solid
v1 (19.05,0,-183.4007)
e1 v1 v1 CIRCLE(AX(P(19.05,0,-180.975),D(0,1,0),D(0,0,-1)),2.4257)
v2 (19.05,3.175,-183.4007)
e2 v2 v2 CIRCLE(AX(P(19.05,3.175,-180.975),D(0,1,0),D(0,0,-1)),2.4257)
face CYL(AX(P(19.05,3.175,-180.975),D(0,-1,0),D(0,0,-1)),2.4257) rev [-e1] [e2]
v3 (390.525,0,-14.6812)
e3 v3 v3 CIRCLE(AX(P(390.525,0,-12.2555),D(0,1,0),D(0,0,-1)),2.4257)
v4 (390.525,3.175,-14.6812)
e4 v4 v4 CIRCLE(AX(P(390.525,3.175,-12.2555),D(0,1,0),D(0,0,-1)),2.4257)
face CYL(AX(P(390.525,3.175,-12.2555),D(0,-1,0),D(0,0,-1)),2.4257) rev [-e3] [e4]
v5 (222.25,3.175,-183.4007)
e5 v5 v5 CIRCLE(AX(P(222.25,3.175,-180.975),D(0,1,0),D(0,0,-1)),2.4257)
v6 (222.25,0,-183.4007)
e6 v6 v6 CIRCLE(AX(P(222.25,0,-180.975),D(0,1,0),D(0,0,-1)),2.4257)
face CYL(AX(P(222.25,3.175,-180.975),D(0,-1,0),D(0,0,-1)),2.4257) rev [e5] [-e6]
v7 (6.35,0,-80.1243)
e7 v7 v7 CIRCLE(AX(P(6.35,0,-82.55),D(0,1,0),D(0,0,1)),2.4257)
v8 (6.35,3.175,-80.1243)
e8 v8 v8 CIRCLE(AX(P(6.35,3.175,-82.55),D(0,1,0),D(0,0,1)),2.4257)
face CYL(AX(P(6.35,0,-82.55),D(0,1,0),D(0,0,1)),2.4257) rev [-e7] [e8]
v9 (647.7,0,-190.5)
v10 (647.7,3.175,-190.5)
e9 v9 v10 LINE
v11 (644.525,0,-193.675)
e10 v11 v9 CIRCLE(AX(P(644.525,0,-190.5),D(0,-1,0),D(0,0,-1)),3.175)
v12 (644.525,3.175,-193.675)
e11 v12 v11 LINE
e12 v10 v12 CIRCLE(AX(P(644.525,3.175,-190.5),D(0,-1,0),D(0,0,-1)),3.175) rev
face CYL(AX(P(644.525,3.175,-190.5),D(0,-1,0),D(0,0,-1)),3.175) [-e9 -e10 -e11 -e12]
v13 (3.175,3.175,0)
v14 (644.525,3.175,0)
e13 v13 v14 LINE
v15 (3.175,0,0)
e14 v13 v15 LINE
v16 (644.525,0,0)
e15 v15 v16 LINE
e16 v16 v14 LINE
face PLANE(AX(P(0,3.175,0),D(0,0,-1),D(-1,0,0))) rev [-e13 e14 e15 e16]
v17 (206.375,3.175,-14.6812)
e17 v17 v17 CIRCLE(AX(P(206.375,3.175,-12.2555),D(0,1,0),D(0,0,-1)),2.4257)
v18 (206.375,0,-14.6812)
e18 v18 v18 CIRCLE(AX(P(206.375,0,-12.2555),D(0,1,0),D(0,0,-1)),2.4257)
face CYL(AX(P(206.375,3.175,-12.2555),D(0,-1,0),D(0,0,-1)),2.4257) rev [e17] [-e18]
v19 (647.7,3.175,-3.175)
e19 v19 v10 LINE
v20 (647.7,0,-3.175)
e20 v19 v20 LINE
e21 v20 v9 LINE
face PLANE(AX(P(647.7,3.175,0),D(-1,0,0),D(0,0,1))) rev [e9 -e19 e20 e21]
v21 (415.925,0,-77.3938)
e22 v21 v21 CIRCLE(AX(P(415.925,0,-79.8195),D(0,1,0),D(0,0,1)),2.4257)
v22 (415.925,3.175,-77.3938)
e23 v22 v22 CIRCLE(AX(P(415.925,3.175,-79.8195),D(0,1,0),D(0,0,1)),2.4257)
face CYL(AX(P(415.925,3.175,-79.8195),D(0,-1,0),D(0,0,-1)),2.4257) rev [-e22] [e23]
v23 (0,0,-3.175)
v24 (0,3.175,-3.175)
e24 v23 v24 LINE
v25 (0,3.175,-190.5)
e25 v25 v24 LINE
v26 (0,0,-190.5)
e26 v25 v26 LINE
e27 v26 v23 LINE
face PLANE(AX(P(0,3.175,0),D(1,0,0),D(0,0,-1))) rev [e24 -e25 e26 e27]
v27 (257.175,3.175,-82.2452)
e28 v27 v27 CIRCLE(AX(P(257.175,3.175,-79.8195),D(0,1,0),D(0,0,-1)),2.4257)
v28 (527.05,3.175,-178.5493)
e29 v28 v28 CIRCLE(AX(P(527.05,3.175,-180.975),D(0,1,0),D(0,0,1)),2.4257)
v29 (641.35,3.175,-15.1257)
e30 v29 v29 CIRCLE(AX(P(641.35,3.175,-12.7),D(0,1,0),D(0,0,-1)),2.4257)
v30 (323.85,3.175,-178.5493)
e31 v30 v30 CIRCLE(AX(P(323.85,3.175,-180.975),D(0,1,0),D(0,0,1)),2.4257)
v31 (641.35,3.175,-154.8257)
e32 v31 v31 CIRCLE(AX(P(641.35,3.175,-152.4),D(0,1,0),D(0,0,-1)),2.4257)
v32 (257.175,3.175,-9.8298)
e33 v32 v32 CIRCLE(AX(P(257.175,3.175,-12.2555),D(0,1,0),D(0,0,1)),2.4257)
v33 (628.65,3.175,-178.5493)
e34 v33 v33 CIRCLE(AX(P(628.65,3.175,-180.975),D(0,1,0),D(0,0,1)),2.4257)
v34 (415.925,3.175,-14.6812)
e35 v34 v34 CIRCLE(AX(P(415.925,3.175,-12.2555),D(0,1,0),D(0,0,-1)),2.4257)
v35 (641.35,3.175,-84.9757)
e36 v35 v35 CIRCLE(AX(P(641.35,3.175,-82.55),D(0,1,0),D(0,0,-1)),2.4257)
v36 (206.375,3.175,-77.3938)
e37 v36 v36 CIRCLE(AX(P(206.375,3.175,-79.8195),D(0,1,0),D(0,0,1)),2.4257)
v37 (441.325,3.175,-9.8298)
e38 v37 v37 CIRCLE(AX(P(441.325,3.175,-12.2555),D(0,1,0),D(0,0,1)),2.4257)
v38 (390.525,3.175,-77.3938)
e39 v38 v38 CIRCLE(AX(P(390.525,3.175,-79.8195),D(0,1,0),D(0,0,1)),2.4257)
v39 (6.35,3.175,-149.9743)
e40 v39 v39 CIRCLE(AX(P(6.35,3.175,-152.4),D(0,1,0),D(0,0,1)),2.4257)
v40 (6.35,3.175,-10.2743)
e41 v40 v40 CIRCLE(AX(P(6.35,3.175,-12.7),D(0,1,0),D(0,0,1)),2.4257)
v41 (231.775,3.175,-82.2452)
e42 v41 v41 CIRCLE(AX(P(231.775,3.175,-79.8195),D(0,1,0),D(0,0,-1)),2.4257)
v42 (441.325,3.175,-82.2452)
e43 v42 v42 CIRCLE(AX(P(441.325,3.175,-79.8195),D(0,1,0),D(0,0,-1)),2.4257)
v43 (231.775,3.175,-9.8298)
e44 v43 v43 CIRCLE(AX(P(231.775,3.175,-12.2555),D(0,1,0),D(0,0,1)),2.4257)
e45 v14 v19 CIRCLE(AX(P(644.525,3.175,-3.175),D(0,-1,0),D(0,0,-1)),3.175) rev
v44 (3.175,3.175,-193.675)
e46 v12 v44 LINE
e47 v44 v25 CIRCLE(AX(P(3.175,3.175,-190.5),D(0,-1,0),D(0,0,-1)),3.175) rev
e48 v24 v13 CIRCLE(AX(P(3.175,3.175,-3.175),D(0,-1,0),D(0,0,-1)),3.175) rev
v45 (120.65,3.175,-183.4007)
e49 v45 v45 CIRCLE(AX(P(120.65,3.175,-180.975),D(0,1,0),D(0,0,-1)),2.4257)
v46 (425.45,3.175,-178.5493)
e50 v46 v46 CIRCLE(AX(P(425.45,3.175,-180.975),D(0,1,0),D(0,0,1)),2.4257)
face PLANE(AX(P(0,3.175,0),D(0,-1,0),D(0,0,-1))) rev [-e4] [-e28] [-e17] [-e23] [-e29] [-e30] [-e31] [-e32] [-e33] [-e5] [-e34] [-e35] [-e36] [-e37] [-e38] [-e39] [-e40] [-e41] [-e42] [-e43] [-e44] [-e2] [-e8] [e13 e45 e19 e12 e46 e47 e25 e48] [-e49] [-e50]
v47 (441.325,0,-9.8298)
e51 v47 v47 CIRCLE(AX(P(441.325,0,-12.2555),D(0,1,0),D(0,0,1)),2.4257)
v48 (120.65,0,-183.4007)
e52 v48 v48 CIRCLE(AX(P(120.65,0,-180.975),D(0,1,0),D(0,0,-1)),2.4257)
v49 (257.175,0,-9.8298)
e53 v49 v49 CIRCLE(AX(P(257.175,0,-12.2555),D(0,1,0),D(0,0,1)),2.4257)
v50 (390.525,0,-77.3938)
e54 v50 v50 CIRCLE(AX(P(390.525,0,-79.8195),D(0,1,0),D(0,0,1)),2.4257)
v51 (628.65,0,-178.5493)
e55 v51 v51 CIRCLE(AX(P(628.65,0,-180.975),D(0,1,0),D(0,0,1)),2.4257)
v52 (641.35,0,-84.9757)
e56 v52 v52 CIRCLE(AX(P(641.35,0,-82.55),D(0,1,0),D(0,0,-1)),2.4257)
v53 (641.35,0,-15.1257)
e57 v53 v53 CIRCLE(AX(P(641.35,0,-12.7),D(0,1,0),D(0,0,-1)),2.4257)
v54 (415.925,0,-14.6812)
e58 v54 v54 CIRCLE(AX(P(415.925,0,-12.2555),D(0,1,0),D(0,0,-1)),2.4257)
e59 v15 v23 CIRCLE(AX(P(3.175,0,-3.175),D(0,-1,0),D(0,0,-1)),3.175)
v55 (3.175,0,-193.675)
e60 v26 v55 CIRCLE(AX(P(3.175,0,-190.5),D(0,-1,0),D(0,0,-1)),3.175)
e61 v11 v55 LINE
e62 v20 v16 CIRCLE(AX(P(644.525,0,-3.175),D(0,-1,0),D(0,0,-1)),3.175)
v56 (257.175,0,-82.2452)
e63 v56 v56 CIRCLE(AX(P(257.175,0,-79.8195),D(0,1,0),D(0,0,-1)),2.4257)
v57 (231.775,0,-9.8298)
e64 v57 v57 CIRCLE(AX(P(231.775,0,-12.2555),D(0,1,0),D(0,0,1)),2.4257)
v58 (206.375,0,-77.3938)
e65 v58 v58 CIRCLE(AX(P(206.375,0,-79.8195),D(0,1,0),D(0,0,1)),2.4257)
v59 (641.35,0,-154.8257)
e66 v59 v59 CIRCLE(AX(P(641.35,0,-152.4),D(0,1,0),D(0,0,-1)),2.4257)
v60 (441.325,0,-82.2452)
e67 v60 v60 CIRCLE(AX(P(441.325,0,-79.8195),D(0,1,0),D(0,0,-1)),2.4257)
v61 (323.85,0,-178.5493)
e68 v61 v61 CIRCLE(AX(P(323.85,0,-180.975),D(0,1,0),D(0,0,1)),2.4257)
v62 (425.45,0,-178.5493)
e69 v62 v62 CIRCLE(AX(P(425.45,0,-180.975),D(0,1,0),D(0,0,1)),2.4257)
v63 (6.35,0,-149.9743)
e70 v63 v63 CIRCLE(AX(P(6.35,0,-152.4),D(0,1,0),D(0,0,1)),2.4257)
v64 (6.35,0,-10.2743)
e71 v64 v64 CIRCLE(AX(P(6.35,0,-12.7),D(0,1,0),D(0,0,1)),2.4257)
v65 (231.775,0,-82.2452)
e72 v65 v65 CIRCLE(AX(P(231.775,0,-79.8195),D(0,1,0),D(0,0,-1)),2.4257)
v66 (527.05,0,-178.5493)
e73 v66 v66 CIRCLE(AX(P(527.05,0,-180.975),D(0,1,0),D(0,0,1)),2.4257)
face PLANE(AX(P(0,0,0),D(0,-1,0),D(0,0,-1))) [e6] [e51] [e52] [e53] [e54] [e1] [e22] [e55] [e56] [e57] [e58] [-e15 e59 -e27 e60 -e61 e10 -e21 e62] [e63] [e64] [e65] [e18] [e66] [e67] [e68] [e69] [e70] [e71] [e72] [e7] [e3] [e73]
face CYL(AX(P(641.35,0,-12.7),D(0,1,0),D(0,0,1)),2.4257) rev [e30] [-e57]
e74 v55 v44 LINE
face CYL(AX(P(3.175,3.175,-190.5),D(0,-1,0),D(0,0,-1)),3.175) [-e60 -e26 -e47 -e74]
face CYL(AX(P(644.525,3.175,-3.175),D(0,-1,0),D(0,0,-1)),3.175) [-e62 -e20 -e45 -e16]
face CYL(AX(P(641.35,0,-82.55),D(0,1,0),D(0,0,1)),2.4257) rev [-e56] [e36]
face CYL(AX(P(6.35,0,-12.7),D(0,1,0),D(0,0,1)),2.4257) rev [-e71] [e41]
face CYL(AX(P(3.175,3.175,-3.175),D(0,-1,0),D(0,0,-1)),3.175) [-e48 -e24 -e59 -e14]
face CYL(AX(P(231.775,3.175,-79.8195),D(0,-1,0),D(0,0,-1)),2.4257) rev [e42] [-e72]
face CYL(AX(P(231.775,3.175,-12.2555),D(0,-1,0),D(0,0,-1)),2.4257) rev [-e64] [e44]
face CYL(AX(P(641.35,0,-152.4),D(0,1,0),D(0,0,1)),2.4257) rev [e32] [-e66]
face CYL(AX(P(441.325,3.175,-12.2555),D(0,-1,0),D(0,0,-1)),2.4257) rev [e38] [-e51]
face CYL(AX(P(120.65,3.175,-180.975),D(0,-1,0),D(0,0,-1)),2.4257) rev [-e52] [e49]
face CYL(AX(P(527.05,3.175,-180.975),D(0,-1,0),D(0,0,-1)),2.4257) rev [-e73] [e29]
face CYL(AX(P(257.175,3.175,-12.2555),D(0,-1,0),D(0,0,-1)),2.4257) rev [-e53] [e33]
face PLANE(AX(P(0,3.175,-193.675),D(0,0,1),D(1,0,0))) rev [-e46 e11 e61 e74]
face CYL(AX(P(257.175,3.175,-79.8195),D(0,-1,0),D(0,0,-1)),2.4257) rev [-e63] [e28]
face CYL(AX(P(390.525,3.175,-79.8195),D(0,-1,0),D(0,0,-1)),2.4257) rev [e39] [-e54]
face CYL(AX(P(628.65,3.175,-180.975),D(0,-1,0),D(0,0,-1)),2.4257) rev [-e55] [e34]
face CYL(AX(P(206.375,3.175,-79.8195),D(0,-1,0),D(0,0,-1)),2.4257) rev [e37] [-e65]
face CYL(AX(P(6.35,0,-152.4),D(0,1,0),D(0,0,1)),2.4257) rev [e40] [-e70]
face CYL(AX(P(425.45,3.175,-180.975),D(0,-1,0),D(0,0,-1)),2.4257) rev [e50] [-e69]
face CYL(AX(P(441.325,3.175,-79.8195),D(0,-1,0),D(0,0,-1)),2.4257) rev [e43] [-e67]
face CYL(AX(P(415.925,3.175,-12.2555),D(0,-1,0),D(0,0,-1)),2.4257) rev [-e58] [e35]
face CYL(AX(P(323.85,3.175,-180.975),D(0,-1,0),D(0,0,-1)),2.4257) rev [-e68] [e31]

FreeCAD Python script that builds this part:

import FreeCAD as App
import Part
import Sketcher

V = App.Vector
Q = App.Units.Quantity


def edges_at(feature, points):
    """Names of the edges that pass closest to the given points."""
    edges = feature.Shape.Edges
    near = lambda p: min(range(len(edges)), key=lambda i: edges[i].distToShape(Part.Vertex(*p))[0])
    return sorted({f"Edge{near(p) + 1}" for p in points})


def add_polygon(sketch, points):
    """Adds a closed chain of lines whose ends are joined by coincident constraints."""
    first, n = sketch.GeometryCount, len(points)
    for a, b in zip(points, points[1:] + points[:1]):
        sketch.addGeometry(Part.LineSegment(App.Vector(*a, 0), App.Vector(*b, 0)), False)
    for i in range(n):
        sketch.addConstraint(Sketcher.Constraint("Coincident", first + i, 2, first + (i + 1) % n, 1))

doc = App.newDocument("Part")
body = doc.addObject("PartDesign::Body", "Body")

sketch1 = body.newObject("Sketcher::SketchObject", "Sketch")
sketch1.AttachmentSupport = (doc.getObject("XZ_Plane"), [""])
sketch1.MapMode = "FlatFace"
add_polygon(sketch1, [(0, -193.7), (0, 0), (647.7, 0), (647.7, -193.7)])
sketch1.addGeometry(Part.Circle(V(206.4, -12.3, 0), V(0, 0, 1), 2.4), False)
sketch1.addGeometry(Part.Circle(V(231.8, -12.3, 0), V(0, 0, 1), 2.4), False)
sketch1.addGeometry(Part.Circle(V(257.2, -12.3, 0), V(0, 0, 1), 2.4), False)
sketch1.addGeometry(Part.Circle(V(206.4, -79.8, 0), V(0, 0, 1), 2.4), False)
sketch1.addGeometry(Part.Circle(V(231.8, -79.8, 0), V(0, 0, 1), 2.4), False)
sketch1.addGeometry(Part.Circle(V(257.2, -79.8, 0), V(0, 0, 1), 2.4), False)
sketch1.addGeometry(Part.Circle(V(390.5, -12.3, 0), V(0, 0, 1), 2.4), False)
sketch1.addGeometry(Part.Circle(V(415.9, -12.3, 0), V(0, 0, 1), 2.4), False)
sketch1.addGeometry(Part.Circle(V(441.3, -12.3, 0), V(0, 0, 1), 2.4), False)
sketch1.addGeometry(Part.Circle(V(390.5, -79.8, 0), V(0, 0, 1), 2.4), False)
sketch1.addGeometry(Part.Circle(V(415.9, -79.8, 0), V(0, 0, 1), 2.4), False)
sketch1.addGeometry(Part.Circle(V(441.3, -79.8, 0), V(0, 0, 1), 2.4), False)
sketch1.addGeometry(Part.Circle(V(19.1, -181, 0), V(0, 0, 1), 2.4), False)
sketch1.addGeometry(Part.Circle(V(120.7, -181, 0), V(0, 0, 1), 2.4), False)
sketch1.addGeometry(Part.Circle(V(222.2, -181, 0), V(0, 0, 1), 2.4), False)
sketch1.addGeometry(Part.Circle(V(323.9, -181, 0), V(0, 0, 1), 2.4), False)
sketch1.addGeometry(Part.Circle(V(425.4, -181, 0), V(0, 0, 1), 2.4), False)
sketch1.addGeometry(Part.Circle(V(527, -181, 0), V(0, 0, 1), 2.4), False)
sketch1.addGeometry(Part.Circle(V(628.6, -181, 0), V(0, 0, 1), 2.4), False)
sketch1.addConstraint([
    Sketcher.Constraint("Vertical", 0),
    Sketcher.Constraint("Horizontal", 1),
    Sketcher.Constraint("Vertical", 2),
    Sketcher.Constraint("Horizontal", 3),
    Sketcher.Constraint("Coincident", 0, 2, -1, 1),
    Sketcher.Constraint("Equal", 4, 5),
    Sketcher.Constraint("Equal", 5, 6),
    Sketcher.Constraint("Equal", 6, 7),
    Sketcher.Constraint("Equal", 7, 8),
    Sketcher.Constraint("Equal", 8, 9),
    Sketcher.Constraint("Equal", 9, 10),
    Sketcher.Constraint("Equal", 10, 11),
    Sketcher.Constraint("Equal", 11, 12),
    Sketcher.Constraint("Equal", 12, 13),
    Sketcher.Constraint("Equal", 13, 14),
    Sketcher.Constraint("Equal", 14, 15),
    Sketcher.Constraint("Equal", 15, 16),
    Sketcher.Constraint("Equal", 16, 17),
    Sketcher.Constraint("Equal", 17, 18),
    Sketcher.Constraint("Equal", 18, 19),
    Sketcher.Constraint("Equal", 19, 20),
    Sketcher.Constraint("Equal", 20, 21),
    Sketcher.Constraint("Equal", 21, 22),
    Sketcher.Constraint("Horizontal", 4, 3, 5, 3),
    Sketcher.Constraint("Horizontal", 5, 3, 6, 3),
    Sketcher.Constraint("Horizontal", 7, 3, 8, 3),
    Sketcher.Constraint("Horizontal", 8, 3, 9, 3),
    Sketcher.Constraint("Horizontal", 6, 3, 10, 3),
    Sketcher.Constraint("Horizontal", 10, 3, 11, 3),
    Sketcher.Constraint("Horizontal", 11, 3, 12, 3),
    Sketcher.Constraint("Horizontal", 9, 3, 13, 3),
    Sketcher.Constraint("Horizontal", 13, 3, 14, 3),
    Sketcher.Constraint("Horizontal", 14, 3, 15, 3),
    Sketcher.Constraint("Horizontal", 16, 3, 17, 3),
    Sketcher.Constraint("Horizontal", 17, 3, 18, 3),
    Sketcher.Constraint("Horizontal", 18, 3, 19, 3),
    Sketcher.Constraint("Horizontal", 19, 3, 20, 3),
    Sketcher.Constraint("Horizontal", 20, 3, 21, 3),
    Sketcher.Constraint("Horizontal", 21, 3, 22, 3),
    Sketcher.Constraint("Vertical", 4, 3, 7, 3),
    Sketcher.Constraint("Vertical", 5, 3, 8, 3),
    Sketcher.Constraint("Vertical", 6, 3, 9, 3),
    Sketcher.Constraint("Vertical", 10, 3, 13, 3),
    Sketcher.Constraint("Vertical", 11, 3, 14, 3),
    Sketcher.Constraint("Vertical", 12, 3, 15, 3),
    Sketcher.Constraint("Diameter", 4, Q("0.191 in")),
    Sketcher.Constraint("DistanceX", 1, 1, 1, 2, Q("25.5 in")),
    Sketcher.Constraint("DistanceX", 4, 3, 5, 3, Q("1 in")),
    Sketcher.Constraint("DistanceX", 5, 3, 6, 3, Q("1 in")),
    Sketcher.Constraint("DistanceX", 10, 3, 11, 3, Q("1 in")),
    Sketcher.Constraint("DistanceX", 11, 3, 12, 3, Q("1 in")),
    Sketcher.Constraint("DistanceX", 16, 3, 17, 3, Q("4 in")),
    Sketcher.Constraint("DistanceX", 17, 3, 18, 3, Q("4 in")),
    Sketcher.Constraint("DistanceX", 18, 3, 19, 3, Q("4 in")),
    Sketcher.Constraint("DistanceX", 19, 3, 20, 3, Q("4 in")),
    Sketcher.Constraint("DistanceX", 20, 3, 21, 3, Q("4 in")),
    Sketcher.Constraint("DistanceX", 21, 3, 22, 3, Q("4 in")),
    Sketcher.Constraint("DistanceY", 2, 2, 22, 3, Q("0.5 in")),
    Sketcher.Constraint("DistanceY", 0, 1, 0, 2, Q("7.625 in")),
    Sketcher.Constraint("DistanceX", -1, 1, 16, 3, Q("0.75 in")),
    Sketcher.Constraint("DistanceY", 7, 3, 4, 3, Q("2.66 in")),
    Sketcher.Constraint("DistanceX", 6, 3, 10, 3, Q("5.25 in")),
    Sketcher.Constraint("DistanceX", -1, 1, 4, 3, Q("8.125 in")),
    Sketcher.Constraint("DistanceY", 4, 3, -1, 1, Q("0.4825 in")),
])
pad1 = body.newObject("PartDesign::Pad", "Pad")
pad1.Profile = sketch1
pad1.Length = Q("0.125 in")
pad1.Reversed = True

sketch2 = body.newObject("Sketcher::SketchObject", "Sketch001")
sketch2.AttachmentSupport = (doc.getObject("XZ_Plane"), [""])
sketch2.MapMode = "FlatFace"
sketch2.AttachmentOffset = App.Placement(V(0, 0, -0.125 * 25.4), App.Rotation())
sketch2.addGeometry([
    Part.Circle(V(6.3, -12.7, 0), V(0, 0, 1), 2.4),
    Part.Circle(V(6.3, -82.5, 0), V(0, 0, 1), 2.4),
    Part.Circle(V(6.3, -152.4, 0), V(0, 0, 1), 2.4),
    Part.Circle(V(6.3, -222.2, 0), V(0, 0, 1), 2.4),
    Part.Circle(V(641.4, -222.2, 0), V(0, 0, 1), 2.4),
    Part.Circle(V(641.4, -152.4, 0), V(0, 0, 1), 2.4),
    Part.Circle(V(641.4, -82.5, 0), V(0, 0, 1), 2.4),
    Part.Circle(V(641.4, -12.7, 0), V(0, 0, 1), 2.4),
], False)
sketch2.addConstraint([
    Sketcher.Constraint("Equal", 0, 1),
    Sketcher.Constraint("Equal", 1, 2),
    Sketcher.Constraint("Equal", 2, 3),
    Sketcher.Constraint("Equal", 3, 4),
    Sketcher.Constraint("Equal", 4, 5),
    Sketcher.Constraint("Equal", 5, 6),
    Sketcher.Constraint("Equal", 6, 7),
    Sketcher.Constraint("Horizontal", 3, 3, 4, 3),
    Sketcher.Constraint("Horizontal", 2, 3, 5, 3),
    Sketcher.Constraint("Horizontal", 1, 3, 6, 3),
    Sketcher.Constraint("Horizontal", 0, 3, 7, 3),
    Sketcher.Constraint("Vertical", 0, 3, 1, 3),
    Sketcher.Constraint("Vertical", 1, 3, 2, 3),
    Sketcher.Constraint("Vertical", 2, 3, 3, 3),
    Sketcher.Constraint("Vertical", 4, 3, 5, 3),
    Sketcher.Constraint("Vertical", 5, 3, 6, 3),
    Sketcher.Constraint("Vertical", 6, 3, 7, 3),
    Sketcher.Constraint("Diameter", 0, Q("0.191 in")),
    Sketcher.Constraint("DistanceY", 2, 3, -1, 1, Q("6 in")),
    Sketcher.Constraint("DistanceX", 3, 3, 4, 3, Q("25 in")),
    Sketcher.Constraint("DistanceY", 0, 3, -1, 1, Q("0.5 in")),
    Sketcher.Constraint("DistanceY", 3, 3, 1, 3, Q("5.5 in")),
    Sketcher.Constraint("DistanceX", -1, 1, 0, 3, Q("0.25 in")),
    Sketcher.Constraint("DistanceY", 1, 3, -1, 1, Q("3.25 in")),
])
pocket1 = body.newObject("PartDesign::Pocket", "Pocket")
pocket1.Profile = sketch2
pocket1.Type = "ThroughAll"
pocket1.Reversed = True
doc.recompute()

fillet = body.newObject("PartDesign::Fillet", "Fillet")
fillet.Base = (pocket1, edges_at(pocket1, [
    (0, 1.587, -193.675),
    (647.7, 1.587, -193.675),
    (647.7, 1.587, 0),
    (0, 1.587, 0),
]))
fillet.Radius = Q("0.125 in")

doc.recompute()
